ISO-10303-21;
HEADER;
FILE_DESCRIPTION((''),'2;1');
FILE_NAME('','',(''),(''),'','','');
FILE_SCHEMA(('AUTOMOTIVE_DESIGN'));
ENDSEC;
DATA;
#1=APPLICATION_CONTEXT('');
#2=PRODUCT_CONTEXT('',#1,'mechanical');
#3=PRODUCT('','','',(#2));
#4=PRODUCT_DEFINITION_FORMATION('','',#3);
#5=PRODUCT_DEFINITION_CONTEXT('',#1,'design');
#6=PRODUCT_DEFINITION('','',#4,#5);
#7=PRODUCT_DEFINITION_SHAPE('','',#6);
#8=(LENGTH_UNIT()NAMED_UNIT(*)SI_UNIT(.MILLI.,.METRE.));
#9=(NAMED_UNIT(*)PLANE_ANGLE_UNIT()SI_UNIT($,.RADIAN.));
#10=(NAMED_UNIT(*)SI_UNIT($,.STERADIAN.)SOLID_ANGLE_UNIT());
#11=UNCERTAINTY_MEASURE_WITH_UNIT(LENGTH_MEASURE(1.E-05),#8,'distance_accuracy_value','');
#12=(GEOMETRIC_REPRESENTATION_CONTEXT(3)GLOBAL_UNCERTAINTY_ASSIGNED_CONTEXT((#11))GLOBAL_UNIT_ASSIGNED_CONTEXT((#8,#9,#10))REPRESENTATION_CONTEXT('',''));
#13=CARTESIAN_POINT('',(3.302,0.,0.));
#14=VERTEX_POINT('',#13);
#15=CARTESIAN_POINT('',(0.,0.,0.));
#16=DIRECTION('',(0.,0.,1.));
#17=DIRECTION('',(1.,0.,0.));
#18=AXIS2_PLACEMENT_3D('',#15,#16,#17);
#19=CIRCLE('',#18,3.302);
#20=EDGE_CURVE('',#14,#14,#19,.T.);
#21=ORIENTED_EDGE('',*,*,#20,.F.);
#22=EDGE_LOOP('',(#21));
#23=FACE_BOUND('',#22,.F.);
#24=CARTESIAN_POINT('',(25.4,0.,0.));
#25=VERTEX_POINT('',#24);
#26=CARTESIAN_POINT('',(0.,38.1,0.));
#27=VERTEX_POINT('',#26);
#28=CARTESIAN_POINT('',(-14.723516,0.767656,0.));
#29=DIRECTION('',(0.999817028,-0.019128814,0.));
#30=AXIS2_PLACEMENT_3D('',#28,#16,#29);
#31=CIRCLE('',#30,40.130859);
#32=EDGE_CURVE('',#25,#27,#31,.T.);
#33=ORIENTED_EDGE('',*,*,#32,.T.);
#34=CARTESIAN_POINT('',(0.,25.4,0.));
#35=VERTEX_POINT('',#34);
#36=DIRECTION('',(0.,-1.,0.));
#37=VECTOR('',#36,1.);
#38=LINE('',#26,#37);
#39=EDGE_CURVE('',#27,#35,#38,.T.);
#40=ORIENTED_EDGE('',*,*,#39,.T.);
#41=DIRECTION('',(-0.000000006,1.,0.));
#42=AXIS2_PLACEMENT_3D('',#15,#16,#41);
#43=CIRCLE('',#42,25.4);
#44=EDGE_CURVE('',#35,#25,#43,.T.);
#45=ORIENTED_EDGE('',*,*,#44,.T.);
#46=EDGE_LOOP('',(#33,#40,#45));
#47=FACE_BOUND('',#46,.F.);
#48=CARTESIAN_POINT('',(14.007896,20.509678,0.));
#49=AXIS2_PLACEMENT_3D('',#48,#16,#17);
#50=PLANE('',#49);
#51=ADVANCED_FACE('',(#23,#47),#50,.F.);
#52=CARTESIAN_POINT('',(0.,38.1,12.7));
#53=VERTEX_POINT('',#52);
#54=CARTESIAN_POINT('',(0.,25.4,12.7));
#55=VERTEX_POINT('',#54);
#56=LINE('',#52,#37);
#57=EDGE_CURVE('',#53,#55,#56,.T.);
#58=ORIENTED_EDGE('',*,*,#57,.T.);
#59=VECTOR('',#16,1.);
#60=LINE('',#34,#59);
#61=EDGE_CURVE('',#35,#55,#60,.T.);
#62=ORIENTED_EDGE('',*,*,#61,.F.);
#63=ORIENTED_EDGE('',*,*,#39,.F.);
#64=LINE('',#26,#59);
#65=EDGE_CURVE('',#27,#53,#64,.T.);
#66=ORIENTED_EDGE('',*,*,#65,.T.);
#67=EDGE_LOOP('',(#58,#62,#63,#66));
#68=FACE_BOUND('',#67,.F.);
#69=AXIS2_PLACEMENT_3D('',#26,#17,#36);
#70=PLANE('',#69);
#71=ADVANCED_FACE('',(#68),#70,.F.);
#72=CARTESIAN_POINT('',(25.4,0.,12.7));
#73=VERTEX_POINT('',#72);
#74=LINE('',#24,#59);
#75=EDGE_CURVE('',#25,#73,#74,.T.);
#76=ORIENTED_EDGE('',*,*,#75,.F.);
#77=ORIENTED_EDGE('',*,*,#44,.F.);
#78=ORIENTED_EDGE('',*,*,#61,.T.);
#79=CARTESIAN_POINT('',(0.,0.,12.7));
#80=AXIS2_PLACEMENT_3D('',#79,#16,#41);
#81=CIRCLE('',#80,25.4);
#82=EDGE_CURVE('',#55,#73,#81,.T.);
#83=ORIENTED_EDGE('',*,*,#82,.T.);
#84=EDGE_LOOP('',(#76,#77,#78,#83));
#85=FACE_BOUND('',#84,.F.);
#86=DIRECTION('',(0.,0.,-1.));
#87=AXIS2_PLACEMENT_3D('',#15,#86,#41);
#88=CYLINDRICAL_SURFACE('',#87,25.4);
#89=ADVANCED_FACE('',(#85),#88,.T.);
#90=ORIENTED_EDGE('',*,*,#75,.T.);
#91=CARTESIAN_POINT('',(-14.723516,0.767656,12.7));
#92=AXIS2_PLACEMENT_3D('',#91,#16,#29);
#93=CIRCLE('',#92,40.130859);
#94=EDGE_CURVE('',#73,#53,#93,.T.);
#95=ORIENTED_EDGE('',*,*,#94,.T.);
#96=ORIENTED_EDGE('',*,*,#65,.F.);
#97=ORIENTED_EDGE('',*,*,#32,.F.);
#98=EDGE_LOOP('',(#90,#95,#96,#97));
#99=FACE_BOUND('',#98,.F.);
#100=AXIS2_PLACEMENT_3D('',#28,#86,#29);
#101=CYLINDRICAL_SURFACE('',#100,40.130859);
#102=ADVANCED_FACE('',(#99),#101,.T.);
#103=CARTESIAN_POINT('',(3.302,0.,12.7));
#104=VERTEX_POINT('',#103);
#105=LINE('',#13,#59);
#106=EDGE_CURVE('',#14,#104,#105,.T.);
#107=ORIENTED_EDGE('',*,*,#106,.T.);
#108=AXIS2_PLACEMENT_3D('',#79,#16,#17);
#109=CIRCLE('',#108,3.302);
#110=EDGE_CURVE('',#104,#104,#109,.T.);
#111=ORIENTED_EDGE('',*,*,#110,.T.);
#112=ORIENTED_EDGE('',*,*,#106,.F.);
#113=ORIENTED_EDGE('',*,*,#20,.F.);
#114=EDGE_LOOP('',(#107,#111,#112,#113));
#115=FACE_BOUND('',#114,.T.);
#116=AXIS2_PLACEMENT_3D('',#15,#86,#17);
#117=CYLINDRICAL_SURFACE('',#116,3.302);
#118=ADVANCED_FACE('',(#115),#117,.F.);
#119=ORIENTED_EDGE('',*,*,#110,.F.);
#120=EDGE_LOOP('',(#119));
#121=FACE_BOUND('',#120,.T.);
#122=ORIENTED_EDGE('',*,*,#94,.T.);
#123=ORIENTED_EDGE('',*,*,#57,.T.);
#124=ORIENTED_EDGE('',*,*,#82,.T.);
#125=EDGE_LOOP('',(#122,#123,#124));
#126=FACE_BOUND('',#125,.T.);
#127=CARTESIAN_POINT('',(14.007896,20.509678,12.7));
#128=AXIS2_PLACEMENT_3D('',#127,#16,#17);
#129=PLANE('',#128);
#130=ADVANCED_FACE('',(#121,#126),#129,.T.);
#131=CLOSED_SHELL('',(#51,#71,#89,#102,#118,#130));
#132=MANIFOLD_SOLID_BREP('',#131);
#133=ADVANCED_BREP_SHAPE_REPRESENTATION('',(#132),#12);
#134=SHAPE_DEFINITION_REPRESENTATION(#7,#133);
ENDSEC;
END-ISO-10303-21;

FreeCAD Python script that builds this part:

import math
import FreeCAD as App
import Part
import Sketcher
from FreeCAD import Vector
Q = App.Units.Quantity

doc = App.newDocument("Part")
body = doc.addObject("PartDesign::Body", "Body")

sketch1 = doc.addObject("Sketcher::SketchObject", "Sketch")
body.addObject(sketch1)
sketch1.AttachmentSupport = (doc.XY_Plane, [""])
sketch1.MapMode = "FlatFace"
sketch1.addGeometry([
    Part.ArcOfCircle(Part.Circle(Vector(-14.7, 0.8, 0), Vector(0, 0, 1), 40.1), math.radians(-1), math.radians(68)),
    Part.LineSegment(Vector(0, 38.1, 0), Vector(0, 25.4, 0)),
    Part.ArcOfCircle(Part.Circle(Vector(0, 0, 0), Vector(0, 0, 1), 25.4), math.radians(90), math.radians(360)),
    Part.Circle(Vector(0, 0, 0), Vector(0, 0, 1), 3.3),
], False)
sketch1.addConstraint([
    Sketcher.Constraint("Coincident", 0, 2, 1, 1),
    Sketcher.Constraint("Coincident", 1, 2, 2, 1),
    Sketcher.Constraint("Coincident", 2, 2, 0, 1),
    Sketcher.Constraint("Vertical", 1),
    Sketcher.Constraint("Coincident", 2, 3, -1, 1),
    Sketcher.Constraint("Coincident", 3, 3, -1, 1),
    Sketcher.Constraint("PointOnObject", 0, 2, -2),
    Sketcher.Constraint("PointOnObject", 2, 2, -1),
    Sketcher.Constraint("Radius", 2, Q("1 in")),
    Sketcher.Constraint("Diameter", 3, Q("0.26 in")),
    Sketcher.Constraint("DistanceY", 1, 2, 1, 1, Q("0.5 in")),
    Sketcher.Constraint("Radius", 0, Q("40.130859 mm")),
])
pad1 = doc.addObject("PartDesign::Pad", "Pad")
body.addObject(pad1)
pad1.Profile = sketch1
pad1.Length = Q("0.5 in")

doc.recompute()
